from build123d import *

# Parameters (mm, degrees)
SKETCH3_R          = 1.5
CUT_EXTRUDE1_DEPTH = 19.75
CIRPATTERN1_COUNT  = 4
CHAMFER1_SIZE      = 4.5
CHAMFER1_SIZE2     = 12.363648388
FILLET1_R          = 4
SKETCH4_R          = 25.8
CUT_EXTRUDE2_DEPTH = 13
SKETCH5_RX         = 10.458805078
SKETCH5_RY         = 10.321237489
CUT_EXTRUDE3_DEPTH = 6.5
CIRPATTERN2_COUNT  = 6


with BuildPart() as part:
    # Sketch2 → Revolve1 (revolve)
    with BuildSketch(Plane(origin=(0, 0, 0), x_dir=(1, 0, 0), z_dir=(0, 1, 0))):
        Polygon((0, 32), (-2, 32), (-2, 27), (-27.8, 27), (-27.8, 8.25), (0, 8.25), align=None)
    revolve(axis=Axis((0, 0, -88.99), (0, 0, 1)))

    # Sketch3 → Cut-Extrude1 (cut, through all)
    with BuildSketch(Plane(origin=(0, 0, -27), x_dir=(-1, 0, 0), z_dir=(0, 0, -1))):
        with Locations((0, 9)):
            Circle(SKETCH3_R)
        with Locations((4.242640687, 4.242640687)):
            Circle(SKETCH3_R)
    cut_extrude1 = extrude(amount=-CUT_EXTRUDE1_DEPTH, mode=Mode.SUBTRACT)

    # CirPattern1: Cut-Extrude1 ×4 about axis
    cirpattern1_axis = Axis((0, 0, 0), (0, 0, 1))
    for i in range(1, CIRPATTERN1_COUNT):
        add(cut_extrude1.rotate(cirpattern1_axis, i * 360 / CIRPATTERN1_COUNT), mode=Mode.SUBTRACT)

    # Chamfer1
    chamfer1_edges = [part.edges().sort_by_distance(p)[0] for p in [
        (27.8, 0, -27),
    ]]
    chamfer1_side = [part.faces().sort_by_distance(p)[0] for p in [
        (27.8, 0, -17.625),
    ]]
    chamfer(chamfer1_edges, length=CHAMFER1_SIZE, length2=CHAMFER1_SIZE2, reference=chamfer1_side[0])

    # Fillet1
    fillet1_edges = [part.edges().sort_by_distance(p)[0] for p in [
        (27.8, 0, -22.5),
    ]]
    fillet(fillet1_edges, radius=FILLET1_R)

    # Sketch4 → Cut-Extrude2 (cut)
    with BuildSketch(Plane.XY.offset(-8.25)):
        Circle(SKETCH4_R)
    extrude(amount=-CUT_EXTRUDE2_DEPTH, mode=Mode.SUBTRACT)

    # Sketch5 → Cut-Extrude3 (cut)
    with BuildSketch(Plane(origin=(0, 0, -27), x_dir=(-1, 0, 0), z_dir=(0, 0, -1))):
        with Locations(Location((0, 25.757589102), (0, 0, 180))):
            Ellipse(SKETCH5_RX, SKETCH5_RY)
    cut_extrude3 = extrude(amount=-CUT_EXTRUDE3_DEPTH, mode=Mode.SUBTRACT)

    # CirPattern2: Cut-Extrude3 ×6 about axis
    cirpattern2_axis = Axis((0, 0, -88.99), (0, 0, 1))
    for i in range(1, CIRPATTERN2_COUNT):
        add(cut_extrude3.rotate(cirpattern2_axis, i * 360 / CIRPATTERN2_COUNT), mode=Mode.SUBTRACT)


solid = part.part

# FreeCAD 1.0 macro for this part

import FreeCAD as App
import Part
import Sketcher

V = App.Vector


def edges_at(feature, points):
    """Names of the edges that pass closest to the given points."""
    edges = feature.Shape.Edges
    near = lambda p: min(range(len(edges)), key=lambda i: edges[i].distToShape(Part.Vertex(*p))[0])
    return sorted({f"Edge{near(p) + 1}" for p in points})


def add_polygon(sketch, points):
    """Adds a closed chain of lines whose ends are joined by coincident constraints."""
    first, n = sketch.GeometryCount, len(points)
    for a, b in zip(points, points[1:] + points[:1]):
        sketch.addGeometry(Part.LineSegment(App.Vector(*a, 0), App.Vector(*b, 0)), False)
    for i in range(n):
        sketch.addConstraint(Sketcher.Constraint("Coincident", first + i, 2, first + (i + 1) % n, 1))

doc = App.newDocument("Part")
body = doc.addObject("PartDesign::Body", "Body")

sketch1 = body.newObject("Sketcher::SketchObject", "Sketch")
sketch1.AttachmentSupport = (doc.getObject("XZ_Plane"), [""])
sketch1.MapMode = "FlatFace"
add_polygon(sketch1, [(0, -32), (-2, -32), (-2, -27), (-27.8, -27), (-27.8, -8.25), (0, -8.25)])
sketch1.addConstraint([
    Sketcher.Constraint("Horizontal", 0),
    Sketcher.Constraint("Vertical", 1),
    Sketcher.Constraint("Horizontal", 2),
    Sketcher.Constraint("Vertical", 3),
    Sketcher.Constraint("Horizontal", 4),
    Sketcher.Constraint("Vertical", 5),
    Sketcher.Constraint("PointOnObject", 4, 2, -2),
    Sketcher.Constraint("DistanceX", 0, 2, 0, 1, 2.0),
    Sketcher.Constraint("DistanceY", 1, 1, 1, 2, 5.0),
    Sketcher.Constraint("DistanceX", 2, 2, 2, 1, 25.8),
    Sketcher.Constraint("DistanceY", 0, 2, -1, 1, 32.0),
    Sketcher.Constraint("DistanceY", 3, 1, 3, 2, 18.75),
])
revolution = body.newObject("PartDesign::Revolution", "Revolution")
revolution.Profile = sketch1
revolution.ReferenceAxis = (sketch1, ["V_Axis"])
revolution.Angle = 360

sketch2 = body.newObject("Sketcher::SketchObject", "Sketch001")
sketch2.AttachmentSupport = (doc.getObject("XY_Plane"), [""])
sketch2.MapMode = "FlatFace"
sketch2.AttachmentOffset = App.Placement(V(0, 0, -27), App.Rotation())
sketch2.addGeometry([
    Part.Circle(V(0, 9, 0), V(0, 0, 1), 1.5),
    Part.Circle(V(-4.242641, 4.242641, 0), V(0, 0, 1), 1.5),
], False)
sketch2.addConstraint([
    Sketcher.Constraint("Equal", 0, 1),
    Sketcher.Constraint("PointOnObject", 0, 3, -2),
    Sketcher.Constraint("Diameter", 0, 3.0),
    Sketcher.Constraint("DistanceY", -1, 1, 0, 3, 9.0),
    Sketcher.Constraint("DistanceX", 1, 3, -1, 1, 4.242641),
    Sketcher.Constraint("DistanceY", -1, 1, 1, 3, 4.242641),
])
pocket1 = body.newObject("PartDesign::Pocket", "Pocket")
pocket1.Profile = sketch2
pocket1.Type = "ThroughAll"
pocket1.Reversed = True
doc.recompute()

polarpattern = body.newObject("PartDesign::PolarPattern", "PolarPattern")
polarpattern.Originals = [pocket1]
polarpattern.Axis = (doc.getObject("Z_Axis"), [""])
polarpattern.Angle = 360
polarpattern.Occurrences = 4
body.Tip = polarpattern
doc.recompute()

chamfer = body.newObject("PartDesign::Chamfer", "Chamfer")
chamfer.Base = (polarpattern, edges_at(polarpattern, [(27.8, 0, -27)]))
chamfer.ChamferType = "Two distances"
chamfer.Size = 4.5
chamfer.Size2 = 12.363648
chamfer.FlipDirection = True
doc.recompute()

fillet = body.newObject("PartDesign::Fillet", "Fillet")
fillet.Base = (chamfer, edges_at(chamfer, [(27.8, 0, -22.5)]))
fillet.Radius = 4

sketch3 = body.newObject("Sketcher::SketchObject", "Sketch002")
sketch3.AttachmentSupport = (doc.getObject("XY_Plane"), [""])
sketch3.MapMode = "FlatFace"
sketch3.AttachmentOffset = App.Placement(V(0, 0, -8.25), App.Rotation())
sketch3.addGeometry(Part.Circle(V(0, 0, 0), V(0, 0, 1), 25.8), False)
sketch3.addConstraint([
    Sketcher.Constraint("Coincident", 0, 3, -1, 1),
    Sketcher.Constraint("Diameter", 0, 51.6),
])
pocket2 = body.newObject("PartDesign::Pocket", "Pocket001")
pocket2.Profile = sketch3
pocket2.Length = 13

sketch4 = body.newObject("Sketcher::SketchObject", "Sketch003")
sketch4.AttachmentSupport = (doc.getObject("XY_Plane"), [""])
sketch4.MapMode = "FlatFace"
sketch4.AttachmentOffset = App.Placement(V(0, 0, -27), App.Rotation())
sketch4.addGeometry(Part.Ellipse(V(10.458805, 25.757589, 0), V(0, 36.078827, 0), V(0, 25.757589, 0)), False)
sketch4.addConstraint(Sketcher.Constraint("Block", 0))
pocket3 = body.newObject("PartDesign::Pocket", "Pocket002")
pocket3.Profile = sketch4
pocket3.Length = 6.5
pocket3.Reversed = True
doc.recompute()

polarpattern2 = body.newObject("PartDesign::PolarPattern", "PolarPattern001")
polarpattern2.Originals = [pocket3]
polarpattern2.Axis = (doc.getObject("Z_Axis"), [""])
polarpattern2.Angle = 360
polarpattern2.Occurrences = 6
body.Tip = polarpattern2

doc.recompute()
